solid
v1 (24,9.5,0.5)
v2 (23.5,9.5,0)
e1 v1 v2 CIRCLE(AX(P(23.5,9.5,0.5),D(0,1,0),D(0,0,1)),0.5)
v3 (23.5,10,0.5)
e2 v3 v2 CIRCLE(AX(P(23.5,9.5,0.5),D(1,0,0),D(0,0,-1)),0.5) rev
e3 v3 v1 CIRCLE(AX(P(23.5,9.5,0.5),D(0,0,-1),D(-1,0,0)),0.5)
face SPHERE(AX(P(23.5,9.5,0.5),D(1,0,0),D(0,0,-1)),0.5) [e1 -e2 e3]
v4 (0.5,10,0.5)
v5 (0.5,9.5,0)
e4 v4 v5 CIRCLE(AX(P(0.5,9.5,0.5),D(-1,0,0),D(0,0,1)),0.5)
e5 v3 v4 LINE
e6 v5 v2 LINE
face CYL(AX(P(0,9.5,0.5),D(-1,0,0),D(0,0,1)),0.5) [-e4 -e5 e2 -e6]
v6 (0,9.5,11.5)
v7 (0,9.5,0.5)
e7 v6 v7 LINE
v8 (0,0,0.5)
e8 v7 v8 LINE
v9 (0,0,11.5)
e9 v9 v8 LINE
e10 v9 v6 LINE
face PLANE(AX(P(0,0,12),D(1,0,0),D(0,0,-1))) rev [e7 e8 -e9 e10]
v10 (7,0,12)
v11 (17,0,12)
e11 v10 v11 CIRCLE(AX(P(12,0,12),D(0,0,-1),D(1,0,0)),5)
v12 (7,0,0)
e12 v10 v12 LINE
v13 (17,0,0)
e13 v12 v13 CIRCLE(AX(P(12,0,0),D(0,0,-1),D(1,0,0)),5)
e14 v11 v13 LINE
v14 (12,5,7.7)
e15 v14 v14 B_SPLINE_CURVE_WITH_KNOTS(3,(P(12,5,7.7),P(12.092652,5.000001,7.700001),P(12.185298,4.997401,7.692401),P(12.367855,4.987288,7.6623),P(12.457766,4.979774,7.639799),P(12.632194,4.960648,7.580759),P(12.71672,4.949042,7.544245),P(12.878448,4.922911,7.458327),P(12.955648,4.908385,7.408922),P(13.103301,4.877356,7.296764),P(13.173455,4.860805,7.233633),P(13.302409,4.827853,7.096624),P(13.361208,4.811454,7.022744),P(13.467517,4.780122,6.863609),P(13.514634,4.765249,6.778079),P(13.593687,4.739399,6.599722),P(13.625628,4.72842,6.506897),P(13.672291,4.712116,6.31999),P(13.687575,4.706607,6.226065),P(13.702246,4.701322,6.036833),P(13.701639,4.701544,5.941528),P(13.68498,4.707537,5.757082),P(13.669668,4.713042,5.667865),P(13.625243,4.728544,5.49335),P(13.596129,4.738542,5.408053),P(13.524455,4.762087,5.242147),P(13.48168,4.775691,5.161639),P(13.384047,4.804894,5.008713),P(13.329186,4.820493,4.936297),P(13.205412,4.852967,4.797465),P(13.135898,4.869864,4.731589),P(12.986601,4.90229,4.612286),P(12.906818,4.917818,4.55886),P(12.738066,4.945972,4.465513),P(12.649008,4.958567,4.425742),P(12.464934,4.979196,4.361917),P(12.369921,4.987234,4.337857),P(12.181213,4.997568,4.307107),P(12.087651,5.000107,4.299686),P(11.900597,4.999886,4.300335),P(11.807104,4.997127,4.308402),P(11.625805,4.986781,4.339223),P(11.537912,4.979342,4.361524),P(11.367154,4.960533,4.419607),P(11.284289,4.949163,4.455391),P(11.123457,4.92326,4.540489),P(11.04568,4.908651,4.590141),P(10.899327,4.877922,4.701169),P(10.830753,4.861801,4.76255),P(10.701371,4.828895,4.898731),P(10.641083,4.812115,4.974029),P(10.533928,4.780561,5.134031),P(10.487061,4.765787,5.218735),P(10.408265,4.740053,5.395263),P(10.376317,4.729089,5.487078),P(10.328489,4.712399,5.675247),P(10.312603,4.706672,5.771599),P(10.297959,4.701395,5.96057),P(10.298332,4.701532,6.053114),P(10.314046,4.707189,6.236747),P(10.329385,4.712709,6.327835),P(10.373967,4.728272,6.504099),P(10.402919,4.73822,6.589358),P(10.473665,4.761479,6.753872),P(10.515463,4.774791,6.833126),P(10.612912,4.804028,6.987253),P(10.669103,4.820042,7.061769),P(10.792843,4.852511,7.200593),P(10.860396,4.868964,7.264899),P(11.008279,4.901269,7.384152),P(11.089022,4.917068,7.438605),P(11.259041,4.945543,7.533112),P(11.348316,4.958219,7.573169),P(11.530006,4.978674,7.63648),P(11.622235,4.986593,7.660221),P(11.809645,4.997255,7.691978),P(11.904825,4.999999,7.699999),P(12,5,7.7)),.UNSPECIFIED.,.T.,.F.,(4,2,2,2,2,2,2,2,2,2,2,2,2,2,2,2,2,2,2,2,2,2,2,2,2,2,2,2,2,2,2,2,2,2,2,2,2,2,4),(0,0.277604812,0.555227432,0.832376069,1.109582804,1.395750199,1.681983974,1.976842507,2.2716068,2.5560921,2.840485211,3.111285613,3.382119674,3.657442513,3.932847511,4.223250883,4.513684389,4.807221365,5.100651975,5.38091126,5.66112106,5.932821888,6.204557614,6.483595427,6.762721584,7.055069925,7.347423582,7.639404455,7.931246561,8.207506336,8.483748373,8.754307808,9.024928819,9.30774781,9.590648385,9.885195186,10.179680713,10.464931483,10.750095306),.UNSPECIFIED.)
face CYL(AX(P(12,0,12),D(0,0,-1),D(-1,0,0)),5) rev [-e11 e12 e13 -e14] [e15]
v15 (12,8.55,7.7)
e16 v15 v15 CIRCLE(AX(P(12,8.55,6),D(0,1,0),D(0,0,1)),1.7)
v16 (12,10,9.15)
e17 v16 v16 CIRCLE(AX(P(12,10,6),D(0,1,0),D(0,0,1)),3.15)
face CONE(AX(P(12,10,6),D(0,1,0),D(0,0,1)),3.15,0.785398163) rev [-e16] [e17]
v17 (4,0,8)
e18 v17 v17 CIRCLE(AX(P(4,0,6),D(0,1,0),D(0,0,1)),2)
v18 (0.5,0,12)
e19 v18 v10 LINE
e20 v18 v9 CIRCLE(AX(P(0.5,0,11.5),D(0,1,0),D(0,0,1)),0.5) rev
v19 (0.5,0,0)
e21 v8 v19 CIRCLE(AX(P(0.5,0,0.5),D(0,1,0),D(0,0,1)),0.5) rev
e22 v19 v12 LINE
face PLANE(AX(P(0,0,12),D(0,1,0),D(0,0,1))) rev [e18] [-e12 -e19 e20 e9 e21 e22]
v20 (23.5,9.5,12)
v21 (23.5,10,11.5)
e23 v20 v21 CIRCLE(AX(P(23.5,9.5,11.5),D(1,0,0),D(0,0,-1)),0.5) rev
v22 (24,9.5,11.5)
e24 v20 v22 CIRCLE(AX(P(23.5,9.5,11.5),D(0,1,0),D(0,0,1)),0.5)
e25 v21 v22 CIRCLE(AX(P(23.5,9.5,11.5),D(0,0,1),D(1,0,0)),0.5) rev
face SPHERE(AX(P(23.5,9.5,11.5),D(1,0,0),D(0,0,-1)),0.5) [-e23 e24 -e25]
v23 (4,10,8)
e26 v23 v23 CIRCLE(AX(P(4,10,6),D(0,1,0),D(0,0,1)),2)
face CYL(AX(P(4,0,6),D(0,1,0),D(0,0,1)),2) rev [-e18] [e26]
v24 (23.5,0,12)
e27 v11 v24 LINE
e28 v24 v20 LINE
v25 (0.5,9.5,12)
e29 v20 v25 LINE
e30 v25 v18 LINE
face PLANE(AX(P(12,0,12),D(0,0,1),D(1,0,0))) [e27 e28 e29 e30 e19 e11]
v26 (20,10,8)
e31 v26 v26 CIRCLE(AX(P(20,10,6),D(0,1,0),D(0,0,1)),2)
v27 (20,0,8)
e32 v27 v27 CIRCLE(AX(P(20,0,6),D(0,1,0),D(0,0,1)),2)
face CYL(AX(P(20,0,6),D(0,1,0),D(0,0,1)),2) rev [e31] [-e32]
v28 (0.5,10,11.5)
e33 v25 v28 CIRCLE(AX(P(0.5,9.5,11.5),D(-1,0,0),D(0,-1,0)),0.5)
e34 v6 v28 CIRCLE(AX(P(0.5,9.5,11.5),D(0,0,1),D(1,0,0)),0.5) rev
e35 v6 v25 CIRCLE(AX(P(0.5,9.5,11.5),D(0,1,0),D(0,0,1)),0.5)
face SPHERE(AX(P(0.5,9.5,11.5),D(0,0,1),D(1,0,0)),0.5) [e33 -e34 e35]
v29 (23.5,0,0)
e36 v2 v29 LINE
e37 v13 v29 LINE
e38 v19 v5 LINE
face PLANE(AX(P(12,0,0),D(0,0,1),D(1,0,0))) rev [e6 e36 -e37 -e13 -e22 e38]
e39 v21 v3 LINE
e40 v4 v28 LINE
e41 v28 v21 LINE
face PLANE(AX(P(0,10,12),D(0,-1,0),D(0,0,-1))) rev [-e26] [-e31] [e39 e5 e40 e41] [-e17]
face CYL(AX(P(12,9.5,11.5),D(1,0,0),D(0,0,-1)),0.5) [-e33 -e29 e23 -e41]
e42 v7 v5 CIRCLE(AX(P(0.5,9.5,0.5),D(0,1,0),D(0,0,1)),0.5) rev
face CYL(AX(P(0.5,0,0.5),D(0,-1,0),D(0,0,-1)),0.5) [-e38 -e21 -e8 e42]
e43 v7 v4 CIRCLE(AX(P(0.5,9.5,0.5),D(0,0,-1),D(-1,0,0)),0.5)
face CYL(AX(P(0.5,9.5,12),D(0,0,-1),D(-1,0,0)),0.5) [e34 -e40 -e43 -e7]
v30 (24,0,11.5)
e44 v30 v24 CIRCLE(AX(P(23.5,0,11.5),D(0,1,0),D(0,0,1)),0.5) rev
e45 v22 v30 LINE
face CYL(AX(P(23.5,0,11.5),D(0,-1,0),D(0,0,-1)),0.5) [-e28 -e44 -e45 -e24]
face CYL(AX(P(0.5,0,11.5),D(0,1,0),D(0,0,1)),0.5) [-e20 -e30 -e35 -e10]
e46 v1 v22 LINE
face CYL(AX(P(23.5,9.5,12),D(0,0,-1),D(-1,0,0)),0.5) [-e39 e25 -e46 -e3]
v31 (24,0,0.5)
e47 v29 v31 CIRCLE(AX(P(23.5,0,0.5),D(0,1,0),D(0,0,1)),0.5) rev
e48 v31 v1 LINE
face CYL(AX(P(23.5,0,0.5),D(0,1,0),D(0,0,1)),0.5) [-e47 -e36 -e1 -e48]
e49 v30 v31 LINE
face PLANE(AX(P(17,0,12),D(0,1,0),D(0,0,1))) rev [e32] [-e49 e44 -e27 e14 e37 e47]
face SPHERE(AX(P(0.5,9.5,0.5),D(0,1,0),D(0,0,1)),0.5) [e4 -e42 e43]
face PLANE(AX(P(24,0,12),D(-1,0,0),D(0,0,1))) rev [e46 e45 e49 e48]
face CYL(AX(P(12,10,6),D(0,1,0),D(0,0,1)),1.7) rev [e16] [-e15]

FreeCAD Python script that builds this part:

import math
import FreeCAD as App
import Part
import Sketcher

V = App.Vector


def edges_at(feature, points):
    """Names of the edges that pass closest to the given points."""
    edges = feature.Shape.Edges
    near = lambda p: min(range(len(edges)), key=lambda i: edges[i].distToShape(Part.Vertex(*p))[0])
    return sorted({f"Edge{near(p) + 1}" for p in points})

doc = App.newDocument("Part")
body = doc.addObject("PartDesign::Body", "Body")

# Sketch on XY plane
sketch1 = doc.addObject("Sketcher::SketchObject", "Sketch")
body.addObject(sketch1)
sketch1.AttachmentSupport = (doc.XY_Plane, [""])
sketch1.MapMode = "FlatFace"
sketch1.addGeometry([
    Part.LineSegment(V(17, 0, 0), V(24, 0, 0)),  # 0
    Part.LineSegment(V(24, 0, 0), V(24, 10, 0)),  # 1
    Part.LineSegment(V(24, 10, 0), V(0, 10, 0)),  # 2
    Part.LineSegment(V(0, 10, 0), V(0, 0, 0)),  # 3
    Part.LineSegment(V(0, 0, 0), V(7, 0, 0)),  # 4
    Part.ArcOfCircle(Part.Circle(V(12, 0, 0), V(0, 0, 1), 5), math.radians(0), math.radians(180)),  # 5
], False)
sketch1.addConstraint([
    Sketcher.Constraint("Coincident", 0, 2, 1, 1),
    Sketcher.Constraint("Coincident", 1, 2, 2, 1),
    Sketcher.Constraint("Coincident", 2, 2, 3, 1),
    Sketcher.Constraint("Coincident", 3, 2, 4, 1),
    Sketcher.Constraint("Coincident", 4, 2, 5, 2),
    Sketcher.Constraint("Coincident", 5, 1, 0, 1),
    Sketcher.Constraint("Horizontal", 0),
    Sketcher.Constraint("Vertical", 1),
    Sketcher.Constraint("Horizontal", 2),
    Sketcher.Constraint("Vertical", 3),
    Sketcher.Constraint("Horizontal", 4),
    Sketcher.Constraint("Coincident", 3, 2, -1, 1),
    Sketcher.Constraint("PointOnObject", 5, 3, -1),
    Sketcher.Constraint("PointOnObject", 0, 2, -1),
    Sketcher.Constraint("Equal", 0, 4),
    Sketcher.Constraint("Radius", 5, 5.0),
    Sketcher.Constraint("DistanceX", 0, 1, 0, 2, 7.0),
    Sketcher.Constraint("DistanceY", 1, 1, 1, 2, 10.0),
])
pad1 = doc.addObject("PartDesign::Pad", "Pad")
body.addObject(pad1)
pad1.Profile = sketch1
pad1.Length = 12

# Sketch on XZ plane
sketch2 = doc.addObject("Sketcher::SketchObject", "Sketch001")
body.addObject(sketch2)
sketch2.AttachmentSupport = (doc.XZ_Plane, [""])
sketch2.MapMode = "FlatFace"
sketch2.AttachmentOffset = App.Placement(V(0, 0, -10), App.Rotation())
sketch2.addGeometry([
    Part.Circle(V(4, 6, 0), V(0, 0, 1), 2),
    Part.Circle(V(20, 6, 0), V(0, 0, 1), 2),
], False)
sketch2.addConstraint([
    Sketcher.Constraint("Equal", 0, 1),
    Sketcher.Constraint("Horizontal", 0, 3, 1, 3),
    Sketcher.Constraint("Diameter", 0, 4.0),
    Sketcher.Constraint("DistanceX", -1, 1, 0, 3, 4.0),
    Sketcher.Constraint("DistanceY", -1, 1, 0, 3, 6.0),
    Sketcher.Constraint("DistanceX", -1, 1, 1, 3, 20.0),
])
pocket1 = doc.addObject("PartDesign::Pocket", "Pocket")
body.addObject(pocket1)
pocket1.Profile = sketch2
pocket1.Type = "ThroughAll"
pocket1.Reversed = True

# Sketch on XZ plane
sketch3 = doc.addObject("Sketcher::SketchObject", "Sketch002")
body.addObject(sketch3)
sketch3.AttachmentSupport = (doc.XZ_Plane, [""])
sketch3.MapMode = "FlatFace"
sketch3.AttachmentOffset = App.Placement(V(0, 0, -10), App.Rotation())
sketch3.addGeometry(Part.Circle(V(12, 6, 0), V(0, 0, 1), 1.7), False)
sketch3.addConstraint([
    Sketcher.Constraint("Diameter", 0, 3.4),
    Sketcher.Constraint("DistanceX", -1, 1, 0, 3, 12.0),
    Sketcher.Constraint("DistanceY", -1, 1, 0, 3, 6.0),
])
doc.recompute()
hole = doc.addObject("PartDesign::Hole", "Hole")
body.addObject(hole)
hole.Profile = sketch3
hole.ThreadType = "None"
hole.Diameter = 3.4
hole.DepthType = "ThroughAll"
hole.HoleCutType = "Countersink"
hole.HoleCutDiameter = 6.3
hole.HoleCutCountersinkAngle = 90
hole.Reversed = True
doc.recompute()

fillet = doc.addObject("PartDesign::Fillet", "Fillet")
body.addObject(fillet)
fillet.Base = (hole, edges_at(hole, [
    (0, 10, 6),
    (24, 10, 6),
    (24, 5, 12),
    (12, 10, 12),
    (0, 5, 12),
    (12, 10, 0),
    (24, 5, 0),
    (0, 5, 0),
]))
fillet.Radius = 0.5

doc.recompute()
